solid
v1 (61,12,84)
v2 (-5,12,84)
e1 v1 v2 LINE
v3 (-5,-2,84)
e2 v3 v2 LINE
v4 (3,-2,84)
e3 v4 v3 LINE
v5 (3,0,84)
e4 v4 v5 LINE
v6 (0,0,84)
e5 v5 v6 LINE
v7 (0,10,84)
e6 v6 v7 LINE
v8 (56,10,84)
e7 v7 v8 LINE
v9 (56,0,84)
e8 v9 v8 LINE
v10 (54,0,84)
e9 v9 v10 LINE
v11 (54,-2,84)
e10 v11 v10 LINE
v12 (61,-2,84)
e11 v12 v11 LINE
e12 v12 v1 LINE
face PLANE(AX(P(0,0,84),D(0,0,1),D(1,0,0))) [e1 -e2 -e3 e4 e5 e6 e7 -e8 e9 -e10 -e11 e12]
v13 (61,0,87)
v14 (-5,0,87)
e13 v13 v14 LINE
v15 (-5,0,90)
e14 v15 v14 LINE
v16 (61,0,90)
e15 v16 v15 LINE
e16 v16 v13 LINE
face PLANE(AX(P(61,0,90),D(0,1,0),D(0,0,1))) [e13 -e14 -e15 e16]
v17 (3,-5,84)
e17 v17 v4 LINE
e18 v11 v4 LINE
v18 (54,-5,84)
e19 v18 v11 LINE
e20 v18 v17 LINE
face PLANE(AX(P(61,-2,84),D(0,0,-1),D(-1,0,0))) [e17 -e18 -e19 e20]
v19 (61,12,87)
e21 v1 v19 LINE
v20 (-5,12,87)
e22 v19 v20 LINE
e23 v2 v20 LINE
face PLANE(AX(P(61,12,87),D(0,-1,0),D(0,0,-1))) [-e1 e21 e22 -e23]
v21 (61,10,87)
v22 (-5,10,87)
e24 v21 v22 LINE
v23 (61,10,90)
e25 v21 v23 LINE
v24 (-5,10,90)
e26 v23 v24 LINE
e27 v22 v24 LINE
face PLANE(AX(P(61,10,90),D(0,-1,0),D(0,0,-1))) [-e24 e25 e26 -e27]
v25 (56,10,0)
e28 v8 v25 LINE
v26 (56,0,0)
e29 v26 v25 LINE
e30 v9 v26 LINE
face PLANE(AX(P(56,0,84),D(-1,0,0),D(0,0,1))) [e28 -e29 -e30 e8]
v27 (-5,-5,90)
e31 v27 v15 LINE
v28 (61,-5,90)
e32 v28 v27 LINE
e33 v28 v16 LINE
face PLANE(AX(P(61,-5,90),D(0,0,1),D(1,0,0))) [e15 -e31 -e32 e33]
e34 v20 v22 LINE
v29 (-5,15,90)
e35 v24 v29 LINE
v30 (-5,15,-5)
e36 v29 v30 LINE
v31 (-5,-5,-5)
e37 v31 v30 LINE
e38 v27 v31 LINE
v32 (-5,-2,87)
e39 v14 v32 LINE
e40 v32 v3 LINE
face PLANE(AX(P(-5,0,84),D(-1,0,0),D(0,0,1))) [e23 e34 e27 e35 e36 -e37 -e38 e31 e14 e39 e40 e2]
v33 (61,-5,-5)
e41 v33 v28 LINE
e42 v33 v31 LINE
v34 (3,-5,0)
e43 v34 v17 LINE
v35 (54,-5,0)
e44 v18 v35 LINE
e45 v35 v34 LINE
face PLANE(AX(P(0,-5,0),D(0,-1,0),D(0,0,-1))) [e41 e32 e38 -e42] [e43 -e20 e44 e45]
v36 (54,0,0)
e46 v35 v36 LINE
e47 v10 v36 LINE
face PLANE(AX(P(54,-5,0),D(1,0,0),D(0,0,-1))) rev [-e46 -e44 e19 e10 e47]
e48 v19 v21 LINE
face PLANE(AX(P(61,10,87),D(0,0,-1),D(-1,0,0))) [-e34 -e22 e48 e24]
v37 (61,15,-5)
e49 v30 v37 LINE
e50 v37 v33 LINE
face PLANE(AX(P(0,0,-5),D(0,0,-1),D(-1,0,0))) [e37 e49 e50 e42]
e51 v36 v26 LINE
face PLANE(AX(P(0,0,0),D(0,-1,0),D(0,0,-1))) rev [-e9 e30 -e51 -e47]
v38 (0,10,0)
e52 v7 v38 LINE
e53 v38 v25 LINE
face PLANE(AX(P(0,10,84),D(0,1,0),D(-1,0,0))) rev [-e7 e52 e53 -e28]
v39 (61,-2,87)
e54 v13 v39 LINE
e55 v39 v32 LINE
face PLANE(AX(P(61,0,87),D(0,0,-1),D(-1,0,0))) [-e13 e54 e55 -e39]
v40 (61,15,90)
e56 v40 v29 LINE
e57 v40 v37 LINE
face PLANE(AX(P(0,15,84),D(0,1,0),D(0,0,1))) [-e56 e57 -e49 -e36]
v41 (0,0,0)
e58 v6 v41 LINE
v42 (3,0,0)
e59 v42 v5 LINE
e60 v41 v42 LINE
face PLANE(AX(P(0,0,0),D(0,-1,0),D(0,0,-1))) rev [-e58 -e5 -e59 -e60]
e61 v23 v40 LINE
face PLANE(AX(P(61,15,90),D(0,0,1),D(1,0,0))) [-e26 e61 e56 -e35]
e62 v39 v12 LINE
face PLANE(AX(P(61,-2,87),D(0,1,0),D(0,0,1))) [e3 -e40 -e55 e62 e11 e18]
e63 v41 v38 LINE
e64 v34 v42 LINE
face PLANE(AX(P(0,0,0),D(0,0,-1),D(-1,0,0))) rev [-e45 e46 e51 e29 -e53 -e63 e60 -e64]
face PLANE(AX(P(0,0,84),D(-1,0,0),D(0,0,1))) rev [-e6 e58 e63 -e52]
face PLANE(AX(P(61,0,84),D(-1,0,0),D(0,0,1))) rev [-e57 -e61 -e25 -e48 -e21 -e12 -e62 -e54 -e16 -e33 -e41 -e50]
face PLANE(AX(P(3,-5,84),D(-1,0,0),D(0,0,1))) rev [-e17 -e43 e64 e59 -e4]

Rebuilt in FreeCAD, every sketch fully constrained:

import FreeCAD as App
import Part
import Sketcher

V = App.Vector


def add_polygon(sketch, points):
    """Adds a closed chain of lines whose ends are joined by coincident constraints."""
    first, n = sketch.GeometryCount, len(points)
    for a, b in zip(points, points[1:] + points[:1]):
        sketch.addGeometry(Part.LineSegment(App.Vector(*a, 0), App.Vector(*b, 0)), False)
    for i in range(n):
        sketch.addConstraint(Sketcher.Constraint("Coincident", first + i, 2, first + (i + 1) % n, 1))

doc = App.newDocument("Part")
params = doc.addObject("Spreadsheet::Sheet", "Params")
for row, (alias, value) in enumerate([
    ("sketch1_width", "5 mm"),
    ("sketch1_width2", "56 mm"),
    ("sketch1_height", "10 mm"),
    ("sketch1_height2", "15 mm"),
    ("pad1_length", "84 mm"),
    ("sketch2_width", "8 mm"),
    ("sketch2_width2", "7 mm"),
    ("sketch2_height", "84 mm"),
    ("pad2_length", "5 mm"),
    ("sketch3_width", "66 mm"),
    ("sketch3_height", "20 mm"),
    ("pad3_length", "5 mm"),
    ("sketch4_width", "3 mm"),
    ("sketch4_width2", "2 mm"),
    ("pad4_length", "66 mm"),
], start=1):
    params.set(f"A{row}", alias)
    params.set(f"B{row}", "=" + value)
    params.setAlias(f"B{row}", alias)

body = doc.addObject("PartDesign::Body", "Body")

# Sketch on XY plane
sketch1 = doc.addObject("Sketcher::SketchObject", "Sketch")
body.addObject(sketch1)
sketch1.AttachmentSupport = (doc.XY_Plane, [""])
sketch1.MapMode = "FlatFace"
add_polygon(sketch1, [(-5, 0), (0, 0), (0, 10), (56, 10), (56, 0), (61, 0), (61, 15), (-5, 15)])  # lines 0-7
sketch1.addConstraint(Sketcher.Constraint("Horizontal", 0))
sketch1.addConstraint(Sketcher.Constraint("Vertical", 1))
sketch1.addConstraint(Sketcher.Constraint("Horizontal", 2))
sketch1.addConstraint(Sketcher.Constraint("Vertical", 3))
sketch1.addConstraint(Sketcher.Constraint("Horizontal", 4))
sketch1.addConstraint(Sketcher.Constraint("Vertical", 5))
sketch1.addConstraint(Sketcher.Constraint("Horizontal", 6))
sketch1.addConstraint(Sketcher.Constraint("Vertical", 7))
sketch1.addConstraint(Sketcher.Constraint("Coincident", 0, 2, -1, 1))
sketch1.addConstraint(Sketcher.Constraint("PointOnObject", 3, 2, -1))
sketch1.addConstraint(Sketcher.Constraint("Equal", 0, 4))
sketch1.addConstraint(Sketcher.Constraint("DistanceX", 0, 1, 0, 2, 5.0))
sketch1.addConstraint(Sketcher.Constraint("DistanceX", 2, 1, 2, 2, 56.0))
sketch1.addConstraint(Sketcher.Constraint("DistanceY", 1, 1, 1, 2, 10.0))
sketch1.addConstraint(Sketcher.Constraint("DistanceY", 5, 1, 5, 2, 15.0))
sketch1.setExpression("Constraints[19]", "Params.sketch1_width")
sketch1.setExpression("Constraints[20]", "Params.sketch1_width2")
sketch1.setExpression("Constraints[21]", "Params.sketch1_height")
sketch1.setExpression("Constraints[22]", "Params.sketch1_height2")
pad1 = doc.addObject("PartDesign::Pad", "Pad")
body.addObject(pad1)
pad1.Profile = sketch1
pad1.setExpression("Length", "Params.pad1_length")

# Sketch on XZ plane
sketch2 = doc.addObject("Sketcher::SketchObject", "Sketch001")
body.addObject(sketch2)
sketch2.AttachmentSupport = (doc.XZ_Plane, [""])
sketch2.MapMode = "FlatFace"
add_polygon(sketch2, [(-5, 84), (-5, 0), (3, 0), (3, 84)])  # lines 0-3
add_polygon(sketch2, [(54, 84), (54, 0), (61, 0), (61, 84)])  # lines 4-7
sketch2.addConstraint(Sketcher.Constraint("Vertical", 0))
sketch2.addConstraint(Sketcher.Constraint("Horizontal", 1))
sketch2.addConstraint(Sketcher.Constraint("Vertical", 2))
sketch2.addConstraint(Sketcher.Constraint("Horizontal", 3))
sketch2.addConstraint(Sketcher.Constraint("Vertical", 4))
sketch2.addConstraint(Sketcher.Constraint("Horizontal", 5))
sketch2.addConstraint(Sketcher.Constraint("Vertical", 6))
sketch2.addConstraint(Sketcher.Constraint("Horizontal", 7))
sketch2.addConstraint(Sketcher.Constraint("PointOnObject", 0, 2, -1))
sketch2.addConstraint(Sketcher.Constraint("PointOnObject", 4, 2, -1))
sketch2.addConstraint(Sketcher.Constraint("Horizontal", 3, 2, 6, 2))
sketch2.addConstraint(Sketcher.Constraint("DistanceX", 1, 1, 1, 2, 8.0))
sketch2.addConstraint(Sketcher.Constraint("DistanceX", 5, 1, 5, 2, 7.0))
sketch2.addConstraint(Sketcher.Constraint("DistanceY", 0, 2, 0, 1, 84.0))
sketch2.addConstraint(Sketcher.Constraint("DistanceX", 0, 2, -1, 1, 5.0))
sketch2.addConstraint(Sketcher.Constraint("DistanceX", -1, 1, 4, 2, 54.0))
sketch2.setExpression("Constraints[19]", "Params.sketch2_width")
sketch2.setExpression("Constraints[20]", "Params.sketch2_width2")
sketch2.setExpression("Constraints[21]", "Params.sketch2_height")
pad2 = doc.addObject("PartDesign::Pad", "Pad001")
body.addObject(pad2)
pad2.Profile = sketch2
pad2.setExpression("Length", "Params.pad2_length")

# Sketch on XY plane
sketch3 = doc.addObject("Sketcher::SketchObject", "Sketch002")
body.addObject(sketch3)
sketch3.AttachmentSupport = (doc.XY_Plane, [""])
sketch3.MapMode = "FlatFace"
add_polygon(sketch3, [(61, 15), (61, -5), (-5, -5), (-5, 15)])  # lines 0-3
sketch3.addConstraint(Sketcher.Constraint("Vertical", 0))
sketch3.addConstraint(Sketcher.Constraint("Horizontal", 1))
sketch3.addConstraint(Sketcher.Constraint("Vertical", 2))
sketch3.addConstraint(Sketcher.Constraint("Horizontal", 3))
sketch3.addConstraint(Sketcher.Constraint("DistanceX", 1, 2, 1, 1, 66.0))
sketch3.addConstraint(Sketcher.Constraint("DistanceY", 0, 2, 0, 1, 20.0))
sketch3.addConstraint(Sketcher.Constraint("DistanceX", -1, 1, 0, 2, 61.0))
sketch3.addConstraint(Sketcher.Constraint("DistanceY", 0, 2, -1, 1, 5.0))
sketch3.setExpression("Constraints[8]", "Params.sketch3_width")
sketch3.setExpression("Constraints[9]", "Params.sketch3_height")
pad3 = doc.addObject("PartDesign::Pad", "Pad002")
body.addObject(pad3)
pad3.Profile = sketch3
pad3.setExpression("Length", "Params.pad3_length")
pad3.Reversed = True

# Sketch on YZ plane
sketch4 = doc.addObject("Sketcher::SketchObject", "Sketch003")
body.addObject(sketch4)
sketch4.AttachmentSupport = (doc.YZ_Plane, [""])
sketch4.MapMode = "FlatFace"
sketch4.AttachmentOffset = App.Placement(V(0, 0, -5), App.Rotation())
add_polygon(sketch4, [(15, 90), (15, 84), (12, 84), (12, 87), (10, 87), (10, 90)])  # lines 0-5
add_polygon(sketch4, [(-5, 84), (-5, 90), (0, 90), (0, 87), (-2, 87), (-2, 84)])  # lines 6-11
sketch4.addConstraint(Sketcher.Constraint("Vertical", 0))
sketch4.addConstraint(Sketcher.Constraint("Horizontal", 1))
sketch4.addConstraint(Sketcher.Constraint("Vertical", 2))
sketch4.addConstraint(Sketcher.Constraint("Horizontal", 3))
sketch4.addConstraint(Sketcher.Constraint("Vertical", 4))
sketch4.addConstraint(Sketcher.Constraint("Horizontal", 5))
sketch4.addConstraint(Sketcher.Constraint("Vertical", 6))
sketch4.addConstraint(Sketcher.Constraint("Horizontal", 7))
sketch4.addConstraint(Sketcher.Constraint("Vertical", 8))
sketch4.addConstraint(Sketcher.Constraint("Horizontal", 9))
sketch4.addConstraint(Sketcher.Constraint("Vertical", 10))
sketch4.addConstraint(Sketcher.Constraint("Horizontal", 11))
sketch4.addConstraint(Sketcher.Constraint("PointOnObject", 7, 2, -2))
sketch4.addConstraint(Sketcher.Constraint("Horizontal", 5, 2, 6, 2))
sketch4.addConstraint(Sketcher.Constraint("Horizontal", 3, 2, 8, 2))
sketch4.addConstraint(Sketcher.Constraint("Horizontal", 1, 2, 10, 2))
sketch4.addConstraint(Sketcher.Constraint("Equal", 5, 7))
sketch4.addConstraint(Sketcher.Constraint("Equal", 3, 9))
sketch4.addConstraint(Sketcher.Constraint("Equal", 11, 2))
sketch4.addConstraint(Sketcher.Constraint("Equal", 2, 4))
sketch4.addConstraint(Sketcher.Constraint("DistanceX", 1, 2, 1, 1, 3.0))
sketch4.addConstraint(Sketcher.Constraint("DistanceX", 3, 2, 3, 1, 2.0))
sketch4.addConstraint(Sketcher.Constraint("DistanceX", -1, 1, 0, 2, 15.0))
sketch4.addConstraint(Sketcher.Constraint("DistanceY", -1, 1, 0, 2, 84.0))
sketch4.setExpression("Constraints[32]", "Params.sketch4_width")
sketch4.setExpression("Constraints[33]", "Params.sketch4_width2")
pad4 = doc.addObject("PartDesign::Pad", "Pad003")
body.addObject(pad4)
pad4.Profile = sketch4
pad4.setExpression("Length", "Params.pad4_length")

doc.recompute()
